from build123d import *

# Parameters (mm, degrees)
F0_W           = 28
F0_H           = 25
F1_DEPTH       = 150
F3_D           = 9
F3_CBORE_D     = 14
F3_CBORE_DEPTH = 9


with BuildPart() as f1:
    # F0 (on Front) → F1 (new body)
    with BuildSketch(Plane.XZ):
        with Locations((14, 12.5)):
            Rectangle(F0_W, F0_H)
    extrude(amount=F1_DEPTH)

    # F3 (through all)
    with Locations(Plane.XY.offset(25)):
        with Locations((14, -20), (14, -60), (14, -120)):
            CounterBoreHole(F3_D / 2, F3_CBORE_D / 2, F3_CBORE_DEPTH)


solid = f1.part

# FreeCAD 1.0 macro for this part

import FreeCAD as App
import Part
import Sketcher
from FreeCAD import Vector


def add_polygon(sketch, points):
    """Adds a closed chain of lines whose ends are joined by coincident constraints."""
    first, n = sketch.GeometryCount, len(points)
    for a, b in zip(points, points[1:] + points[:1]):
        sketch.addGeometry(Part.LineSegment(App.Vector(*a, 0), App.Vector(*b, 0)), False)
    for i in range(n):
        sketch.addConstraint(Sketcher.Constraint("Coincident", first + i, 2, first + (i + 1) % n, 1))

doc = App.newDocument("Part")
body = doc.addObject("PartDesign::Body", "Body")

# Sketch on XZ plane
sketch1 = body.newObject("Sketcher::SketchObject", "Sketch")
sketch1.AttachmentSupport = (doc.getObject("XZ_Plane"), [""])
sketch1.MapMode = "FlatFace"
add_polygon(sketch1, [(0, 25), (0, 0), (28, 0), (28, 25)])  # lines 0-3
sketch1.addConstraint([
    Sketcher.Constraint("Vertical", 0),
    Sketcher.Constraint("Horizontal", 1),
    Sketcher.Constraint("Vertical", 2),
    Sketcher.Constraint("Horizontal", 3),
    Sketcher.Constraint("Coincident", 0, 2, -1, 1),
    Sketcher.Constraint("DistanceX", 1, 1, 1, 2, 28.0),
    Sketcher.Constraint("DistanceY", 0, 2, 0, 1, 25.0),
])
pad1 = body.newObject("PartDesign::Pad", "Pad")
pad1.Profile = sketch1
pad1.Length = 150

# Sketch on XY plane
sketch2 = body.newObject("Sketcher::SketchObject", "Sketch001")
sketch2.AttachmentSupport = (doc.getObject("XY_Plane"), [""])
sketch2.MapMode = "FlatFace"
sketch2.AttachmentOffset = App.Placement(Vector(0, 0, 25), App.Rotation())
sketch2.addGeometry([
    Part.Circle(Vector(14, -20, 0), Vector(0, 0, 1), 4.5),
    Part.Circle(Vector(14, -60, 0), Vector(0, 0, 1), 4.5),
    Part.Circle(Vector(14, -120, 0), Vector(0, 0, 1), 4.5),
], False)
sketch2.addConstraint([
    Sketcher.Constraint("Equal", 0, 1),
    Sketcher.Constraint("Equal", 1, 2),
    Sketcher.Constraint("Vertical", 0, 3, 1, 3),
    Sketcher.Constraint("Vertical", 1, 3, 2, 3),
    Sketcher.Constraint("Diameter", 0, 9.0),
    Sketcher.Constraint("DistanceX", -1, 1, 0, 3, 14.0),
    Sketcher.Constraint("DistanceY", 0, 3, -1, 1, 20.0),
    Sketcher.Constraint("DistanceY", 1, 3, -1, 1, 60.0),
    Sketcher.Constraint("DistanceY", 2, 3, -1, 1, 120.0),
])
doc.recompute()
hole = body.newObject("PartDesign::Hole", "Hole")
hole.Profile = sketch2
hole.ThreadType = "None"
hole.Diameter = 9
hole.DepthType = "ThroughAll"
hole.HoleCutType = "Counterbore"
hole.HoleCutDiameter = 14
hole.HoleCutDepth = 9

doc.recompute()
